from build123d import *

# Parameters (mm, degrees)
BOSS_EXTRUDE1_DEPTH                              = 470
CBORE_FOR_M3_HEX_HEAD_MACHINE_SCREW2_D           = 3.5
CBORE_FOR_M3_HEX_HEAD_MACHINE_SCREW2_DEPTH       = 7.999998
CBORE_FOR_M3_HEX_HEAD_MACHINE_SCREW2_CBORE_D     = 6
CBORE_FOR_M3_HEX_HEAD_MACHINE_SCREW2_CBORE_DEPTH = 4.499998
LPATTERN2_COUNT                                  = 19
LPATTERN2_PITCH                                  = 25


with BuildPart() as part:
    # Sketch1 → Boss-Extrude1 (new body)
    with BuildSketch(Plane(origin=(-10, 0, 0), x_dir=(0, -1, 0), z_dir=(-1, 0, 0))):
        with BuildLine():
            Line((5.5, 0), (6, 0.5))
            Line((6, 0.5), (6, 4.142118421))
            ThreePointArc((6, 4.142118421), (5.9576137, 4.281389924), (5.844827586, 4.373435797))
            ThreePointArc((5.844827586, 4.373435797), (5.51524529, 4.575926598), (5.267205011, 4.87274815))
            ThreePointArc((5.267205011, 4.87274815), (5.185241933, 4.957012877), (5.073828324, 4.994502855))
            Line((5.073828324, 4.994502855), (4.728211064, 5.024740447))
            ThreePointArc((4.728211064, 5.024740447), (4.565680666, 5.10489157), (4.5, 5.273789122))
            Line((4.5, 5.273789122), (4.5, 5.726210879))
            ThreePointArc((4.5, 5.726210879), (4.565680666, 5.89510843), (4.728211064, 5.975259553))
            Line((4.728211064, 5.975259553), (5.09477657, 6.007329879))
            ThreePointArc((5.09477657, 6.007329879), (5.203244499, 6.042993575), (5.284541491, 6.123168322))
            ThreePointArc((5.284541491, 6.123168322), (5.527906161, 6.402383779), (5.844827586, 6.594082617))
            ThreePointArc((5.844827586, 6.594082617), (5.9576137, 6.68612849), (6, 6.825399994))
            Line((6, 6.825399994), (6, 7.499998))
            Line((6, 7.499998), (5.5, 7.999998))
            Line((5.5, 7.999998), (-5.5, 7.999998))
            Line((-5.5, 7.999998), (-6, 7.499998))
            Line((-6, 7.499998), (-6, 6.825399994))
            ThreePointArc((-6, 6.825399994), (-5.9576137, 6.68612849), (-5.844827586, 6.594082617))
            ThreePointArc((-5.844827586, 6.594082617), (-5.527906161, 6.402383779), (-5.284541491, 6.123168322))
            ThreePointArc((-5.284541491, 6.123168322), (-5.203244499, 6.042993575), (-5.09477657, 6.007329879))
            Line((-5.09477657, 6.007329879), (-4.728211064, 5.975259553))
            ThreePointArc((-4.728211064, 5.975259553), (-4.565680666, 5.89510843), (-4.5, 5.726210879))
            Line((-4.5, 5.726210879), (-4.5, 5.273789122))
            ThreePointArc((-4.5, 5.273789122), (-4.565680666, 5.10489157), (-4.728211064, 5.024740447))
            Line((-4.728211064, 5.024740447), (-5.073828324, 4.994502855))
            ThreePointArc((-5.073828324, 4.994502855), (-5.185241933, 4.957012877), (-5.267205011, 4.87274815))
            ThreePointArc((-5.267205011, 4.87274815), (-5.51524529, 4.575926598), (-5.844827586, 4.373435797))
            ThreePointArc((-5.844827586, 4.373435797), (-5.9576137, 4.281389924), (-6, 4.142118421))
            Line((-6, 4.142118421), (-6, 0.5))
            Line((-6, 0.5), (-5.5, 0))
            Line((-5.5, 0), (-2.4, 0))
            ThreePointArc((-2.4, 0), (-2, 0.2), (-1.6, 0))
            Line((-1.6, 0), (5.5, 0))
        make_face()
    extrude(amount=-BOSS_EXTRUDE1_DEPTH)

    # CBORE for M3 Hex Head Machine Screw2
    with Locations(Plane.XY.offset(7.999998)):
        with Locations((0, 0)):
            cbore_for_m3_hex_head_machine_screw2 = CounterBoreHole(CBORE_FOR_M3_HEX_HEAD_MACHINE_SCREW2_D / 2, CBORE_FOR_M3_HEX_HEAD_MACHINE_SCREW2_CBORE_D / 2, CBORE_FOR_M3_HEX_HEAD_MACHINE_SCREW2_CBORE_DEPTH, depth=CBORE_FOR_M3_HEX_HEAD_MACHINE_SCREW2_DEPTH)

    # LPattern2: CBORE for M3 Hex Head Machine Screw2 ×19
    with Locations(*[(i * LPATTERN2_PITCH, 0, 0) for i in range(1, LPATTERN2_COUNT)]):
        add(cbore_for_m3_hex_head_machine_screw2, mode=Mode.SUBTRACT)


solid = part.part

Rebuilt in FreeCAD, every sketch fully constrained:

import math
import FreeCAD as App
import Part
import Sketcher

V = App.Vector
Q = App.Units.Quantity

doc = App.newDocument("Part")
params = doc.addObject("Spreadsheet::Sheet", "Params")
for row, (alias, value) in enumerate([
    ("sketch1_radius", "1.2 mm"),
    ("sketch1_radius2", "0.5 mm"),
    ("sketch1_width", "11 mm"),
    ("sketch1_radius3", "0.25 mm"),
    ("sketch1_width2", "3.1 mm"),
    ("pad1_length", "470 mm"),
    ("sketch2_diameter", "3.5 mm"),
    ("hole_diameter", "3.5 mm"),
    ("hole_depth", "7.999998 mm"),
    ("hole_cbore_diameter", "6 mm"),
    ("hole_cbore_depth", "4.499998 mm"),
    ("linearpattern_pitch", "25 mm"),
], start=1):
    params.set(f"A{row}", alias)
    params.set(f"B{row}", "=" + value)
    params.setAlias(f"B{row}", alias)

body = doc.addObject("PartDesign::Body", "Body")

# Sketch on YZ plane
sketch1 = body.newObject("Sketcher::SketchObject", "Sketch")
sketch1.AttachmentSupport = (doc.getObject("YZ_Plane"), [""])
sketch1.MapMode = "FlatFace"
sketch1.AttachmentOffset = App.Placement(V(0, 0, -10), App.Rotation())
sketch1.addGeometry(Part.LineSegment(V(-5.5, 0, 0), V(-6, 0.5, 0)), False)
sketch1.addGeometry(Part.LineSegment(V(-6, 0.5, 0), V(-6, 4.142118, 0)), False)
sketch1.addGeometry(Part.ArcOfCircle(Part.Circle(V(-5.75, 4.142118, 0), V(0, 0, 1), 0.25), math.radians(112.29097), math.radians(180)), False)
sketch1.addGeometry(Part.ArcOfCircle(Part.Circle(V(-6.3, 5.483759, 0), V(0, 0, 1), 1.2), math.radians(-67.70903), math.radians(-30.608951)), False)
sketch1.addGeometry(Part.ArcOfCircle(Part.Circle(V(-5.052039, 4.745454, 0), V(0, 0, 1), 0.25), math.radians(95), math.radians(149.391049)), False)
sketch1.addGeometry(Part.LineSegment(V(-5.073828, 4.994503, 0), V(-4.728211, 5.02474, 0)), False)
sketch1.addGeometry(Part.ArcOfCircle(Part.Circle(V(-4.75, 5.273789, 0), V(0, 0, 1), 0.25), math.radians(-85), math.radians(0)), False)
sketch1.addGeometry(Part.LineSegment(V(-4.5, 5.273789, 0), V(-4.5, 5.726211, 0)), False)
sketch1.addGeometry(Part.ArcOfCircle(Part.Circle(V(-4.75, 5.726211, 0), V(0, 0, 1), 0.25), math.radians(0), math.radians(85)), False)
sketch1.addGeometry(Part.LineSegment(V(-4.728211, 5.97526, 0), V(-5.094777, 6.00733, 0)), False)
sketch1.addGeometry(Part.ArcOfCircle(Part.Circle(V(-5.072988, 6.256379, 0), V(0, 0, 1), 0.25), math.radians(-147.802393), math.radians(-95)), False)
sketch1.addGeometry(Part.ArcOfCircle(Part.Circle(V(-6.3, 5.483759, 0), V(0, 0, 1), 1.2), math.radians(32.197607), math.radians(67.70903)), False)
sketch1.addGeometry(Part.ArcOfCircle(Part.Circle(V(-5.75, 6.8254, 0), V(0, 0, 1), 0.25), math.radians(180), math.radians(247.70903)), False)
sketch1.addGeometry(Part.LineSegment(V(-6, 6.8254, 0), V(-6, 7.499998, 0)), False)
sketch1.addGeometry(Part.LineSegment(V(-6, 7.499998, 0), V(-5.5, 7.999998, 0)), False)
sketch1.addGeometry(Part.LineSegment(V(-5.5, 7.999998, 0), V(5.5, 7.999998, 0)), False)
sketch1.addGeometry(Part.LineSegment(V(5.5, 7.999998, 0), V(6, 7.499998, 0)), False)
sketch1.addGeometry(Part.LineSegment(V(6, 7.499998, 0), V(6, 6.8254, 0)), False)
sketch1.addGeometry(Part.ArcOfCircle(Part.Circle(V(5.75, 6.8254, 0), V(0, 0, 1), 0.25), math.radians(-67.70903), math.radians(0)), False)
sketch1.addGeometry(Part.ArcOfCircle(Part.Circle(V(6.3, 5.483759, 0), V(0, 0, 1), 1.2), math.radians(112.29097), math.radians(147.802393)), False)
sketch1.addGeometry(Part.ArcOfCircle(Part.Circle(V(5.072988, 6.256379, 0), V(0, 0, 1), 0.25), math.radians(-85), math.radians(-32.197607)), False)
sketch1.addGeometry(Part.LineSegment(V(5.094777, 6.00733, 0), V(4.728211, 5.97526, 0)), False)
sketch1.addGeometry(Part.ArcOfCircle(Part.Circle(V(4.75, 5.726211, 0), V(0, 0, 1), 0.25), math.radians(95), math.radians(180)), False)
sketch1.addGeometry(Part.LineSegment(V(4.5, 5.726211, 0), V(4.5, 5.273789, 0)), False)
sketch1.addGeometry(Part.ArcOfCircle(Part.Circle(V(4.75, 5.273789, 0), V(0, 0, 1), 0.25), math.radians(-180), math.radians(-95)), False)
sketch1.addGeometry(Part.LineSegment(V(4.728211, 5.02474, 0), V(5.073828, 4.994503, 0)), False)
sketch1.addGeometry(Part.ArcOfCircle(Part.Circle(V(5.052039, 4.745454, 0), V(0, 0, 1), 0.25), math.radians(30.608951), math.radians(85)), False)
sketch1.addGeometry(Part.ArcOfCircle(Part.Circle(V(6.3, 5.483759, 0), V(0, 0, 1), 1.2), math.radians(-149.391049), math.radians(-112.29097)), False)
sketch1.addGeometry(Part.ArcOfCircle(Part.Circle(V(5.75, 4.142118, 0), V(0, 0, 1), 0.25), math.radians(0), math.radians(67.70903)), False)
sketch1.addGeometry(Part.LineSegment(V(6, 4.142118, 0), V(6, 0.5, 0)), False)
sketch1.addGeometry(Part.LineSegment(V(6, 0.5, 0), V(5.5, 0, 0)), False)
sketch1.addGeometry(Part.LineSegment(V(5.5, 0, 0), V(2.4, 0, 0)), False)
sketch1.addGeometry(Part.ArcOfCircle(Part.Circle(V(2, -0.3, 0), V(0, 0, 1), 0.5), math.radians(36.869898), math.radians(143.130102)), False)
sketch1.addGeometry(Part.LineSegment(V(1.6, 0, 0), V(-5.5, 0, 0)), False)
sketch1.addConstraint(Sketcher.Constraint("Coincident", 0, 2, 1, 1))
sketch1.addConstraint(Sketcher.Constraint("Tangent", 1, 2, 2, 2))
sketch1.addConstraint(Sketcher.Constraint("Tangent", 2, 1, 3, 1))
sketch1.addConstraint(Sketcher.Constraint("Tangent", 3, 2, 4, 2))
sketch1.addConstraint(Sketcher.Constraint("Tangent", 4, 1, 5, 1))
sketch1.addConstraint(Sketcher.Constraint("Tangent", 5, 2, 6, 1))
sketch1.addConstraint(Sketcher.Constraint("Tangent", 6, 2, 7, 1))
sketch1.addConstraint(Sketcher.Constraint("Tangent", 7, 2, 8, 1))
sketch1.addConstraint(Sketcher.Constraint("Tangent", 8, 2, 9, 1))
sketch1.addConstraint(Sketcher.Constraint("Tangent", 9, 2, 10, 2))
sketch1.addConstraint(Sketcher.Constraint("Tangent", 10, 1, 11, 1))
sketch1.addConstraint(Sketcher.Constraint("Tangent", 11, 2, 12, 2))
sketch1.addConstraint(Sketcher.Constraint("Tangent", 12, 1, 13, 1))
sketch1.addConstraint(Sketcher.Constraint("Coincident", 13, 2, 14, 1))
sketch1.addConstraint(Sketcher.Constraint("Coincident", 14, 2, 15, 1))
sketch1.addConstraint(Sketcher.Constraint("Coincident", 15, 2, 16, 1))
sketch1.addConstraint(Sketcher.Constraint("Coincident", 16, 2, 17, 1))
sketch1.addConstraint(Sketcher.Constraint("Tangent", 17, 2, 18, 2))
sketch1.addConstraint(Sketcher.Constraint("Tangent", 18, 1, 19, 1))
sketch1.addConstraint(Sketcher.Constraint("Tangent", 19, 2, 20, 2))
sketch1.addConstraint(Sketcher.Constraint("Tangent", 20, 1, 21, 1))
sketch1.addConstraint(Sketcher.Constraint("Tangent", 21, 2, 22, 1))
sketch1.addConstraint(Sketcher.Constraint("Tangent", 22, 2, 23, 1))
sketch1.addConstraint(Sketcher.Constraint("Tangent", 23, 2, 24, 1))
sketch1.addConstraint(Sketcher.Constraint("Tangent", 24, 2, 25, 1))
sketch1.addConstraint(Sketcher.Constraint("Tangent", 25, 2, 26, 2))
sketch1.addConstraint(Sketcher.Constraint("Tangent", 26, 1, 27, 1))
sketch1.addConstraint(Sketcher.Constraint("Tangent", 27, 2, 28, 2))
sketch1.addConstraint(Sketcher.Constraint("Tangent", 28, 1, 29, 1))
sketch1.addConstraint(Sketcher.Constraint("Coincident", 29, 2, 30, 1))
sketch1.addConstraint(Sketcher.Constraint("Coincident", 30, 2, 31, 1))
sketch1.addConstraint(Sketcher.Constraint("Coincident", 31, 2, 32, 1))
sketch1.addConstraint(Sketcher.Constraint("Coincident", 32, 2, 33, 1))
sketch1.addConstraint(Sketcher.Constraint("Coincident", 33, 2, 0, 1))
sketch1.addConstraint(Sketcher.Constraint("Vertical", 1))
sketch1.addConstraint(Sketcher.Constraint("Vertical", 7))
sketch1.addConstraint(Sketcher.Constraint("Vertical", 13))
sketch1.addConstraint(Sketcher.Constraint("Horizontal", 15))
sketch1.addConstraint(Sketcher.Constraint("Vertical", 17))
sketch1.addConstraint(Sketcher.Constraint("Vertical", 23))
sketch1.addConstraint(Sketcher.Constraint("Vertical", 29))
sketch1.addConstraint(Sketcher.Constraint("Horizontal", 31))
sketch1.addConstraint(Sketcher.Constraint("Horizontal", 33))
sketch1.addConstraint(Sketcher.Constraint("Coincident", 11, 3, 3, 3))
sketch1.addConstraint(Sketcher.Constraint("Coincident", 27, 3, 19, 3))
sketch1.addConstraint(Sketcher.Constraint("Equal", 2, 4))
sketch1.addConstraint(Sketcher.Constraint("Equal", 4, 6))
sketch1.addConstraint(Sketcher.Constraint("Equal", 6, 8))
sketch1.addConstraint(Sketcher.Constraint("Equal", 8, 10))
sketch1.addConstraint(Sketcher.Constraint("Equal", 3, 11))
sketch1.addConstraint(Sketcher.Constraint("Equal", 10, 12))
sketch1.addConstraint(Sketcher.Constraint("Equal", 12, 18))
sketch1.addConstraint(Sketcher.Constraint("Equal", 11, 19))
sketch1.addConstraint(Sketcher.Constraint("Equal", 18, 20))
sketch1.addConstraint(Sketcher.Constraint("Equal", 20, 22))
sketch1.addConstraint(Sketcher.Constraint("Equal", 22, 24))
sketch1.addConstraint(Sketcher.Constraint("Equal", 24, 26))
sketch1.addConstraint(Sketcher.Constraint("Equal", 19, 27))
sketch1.addConstraint(Sketcher.Constraint("Equal", 26, 28))
sketch1.addConstraint(Sketcher.Constraint("Symmetric", 30, 2, 33, 2, -1, 1))
sketch1.addConstraint(Sketcher.Constraint("Symmetric", 12, 3, 18, 3, -2))
sketch1.addConstraint(Sketcher.Constraint("Symmetric", 10, 3, 20, 3, -2))
sketch1.addConstraint(Sketcher.Constraint("Symmetric", 8, 3, 22, 3, -2))
sketch1.addConstraint(Sketcher.Constraint("Symmetric", 5, 2, 24, 2, -2))
sketch1.addConstraint(Sketcher.Constraint("Symmetric", 0, 2, 29, 2, -2))
sketch1.addConstraint(Sketcher.Constraint("PointOnObject", 30, 2, -1))
sketch1.addConstraint(Sketcher.Constraint("Perpendicular", 0, 14))
sketch1.addConstraint(Sketcher.Constraint("Perpendicular", 14, 16))
sketch1.addConstraint(Sketcher.Constraint("Parallel", 5, 21))
sketch1.addConstraint(Sketcher.Constraint("Perpendicular", 16, 30))
sketch1.addConstraint(Sketcher.Constraint("Horizontal", 13, 2, 16, 2))
sketch1.addConstraint(Sketcher.Constraint("Vertical", 2, 3, 12, 3))
sketch1.addConstraint(Sketcher.Constraint("Vertical", 15, 2, 30, 2))
sketch1.addConstraint(Sketcher.Constraint("Radius", 3, Q("1.2 mm")))
sketch1.addConstraint(Sketcher.Constraint("Radius", 32, Q("0.5 mm")))
sketch1.addConstraint(Sketcher.Constraint("DistanceX", 15, 1, 15, 2, Q("11 mm")))
sketch1.addConstraint(Sketcher.Constraint("Angle", 5, Q("5 deg")))
sketch1.addConstraint(Sketcher.Constraint("Radius", 2, Q("0.25 mm")))
sketch1.addConstraint(Sketcher.Constraint("DistanceX", 31, 2, 31, 1, Q("3.1 mm")))
sketch1.addConstraint(Sketcher.Constraint("DistanceX", 33, 2, 33, 1, Q("7.1 mm")))
sketch1.addConstraint(Sketcher.Constraint("DistanceX", 0, 2, -1, 1, Q("6 mm")))
sketch1.addConstraint(Sketcher.Constraint("DistanceX", 2, 3, 6, 3, Q("1 mm")))
sketch1.addConstraint(Sketcher.Constraint("DistanceX", 3, 3, -1, 1, Q("6.3 mm")))
sketch1.addConstraint(Sketcher.Constraint("DistanceY", 13, 1, 13, 2, Q("0.674598 mm")))
sketch1.addConstraint(Sketcher.Constraint("DistanceX", 2, 1, 4, 1, Q("0.770999 mm")))
sketch1.addConstraint(Sketcher.Constraint("DistanceY", 1, 1, 1, 2, Q("3.642118 mm")))
sketch1.addConstraint(Sketcher.Constraint("DistanceY", 7, 1, 7, 2, Q("0.452422 mm")))
sketch1.setExpression("Constraints[73]", "Params.sketch1_radius")
sketch1.setExpression("Constraints[74]", "Params.sketch1_radius2")
sketch1.setExpression("Constraints[75]", "Params.sketch1_width")
sketch1.setExpression("Constraints[77]", "Params.sketch1_radius3")
sketch1.setExpression("Constraints[78]", "Params.sketch1_width2")
pad1 = body.newObject("PartDesign::Pad", "Pad")
pad1.Profile = sketch1
pad1.setExpression("Length", "Params.pad1_length")

# Sketch on XY plane
sketch2 = body.newObject("Sketcher::SketchObject", "Sketch001")
sketch2.AttachmentSupport = (doc.getObject("XY_Plane"), [""])
sketch2.MapMode = "FlatFace"
sketch2.AttachmentOffset = App.Placement(V(0, 0, 7.999998), App.Rotation())
sketch2.addGeometry(Part.Circle(V(0, 0, 0), V(0, 0, 1), 1.75), False)
sketch2.addConstraint(Sketcher.Constraint("Coincident", 0, 3, -1, 1))
sketch2.addConstraint(Sketcher.Constraint("Diameter", 0, Q("3.5 mm")))
sketch2.setExpression("Constraints[1]", "Params.sketch2_diameter")
doc.recompute()
hole = body.newObject("PartDesign::Hole", "Hole")
hole.Profile = sketch2
hole.ThreadType = "None"
hole.setExpression("Diameter", "Params.hole_diameter")
hole.DepthType = "Dimension"
hole.setExpression("Depth", "Params.hole_depth")
hole.DrillPoint = "Flat"
hole.HoleCutType = "Counterbore"
hole.setExpression("HoleCutDiameter", "Params.hole_cbore_diameter")
hole.setExpression("HoleCutDepth", "Params.hole_cbore_depth")
doc.recompute()

linearpattern = body.newObject("PartDesign::LinearPattern", "LinearPattern")
linearpattern.Originals = [hole]
linearpattern.Direction = (doc.getObject("X_Axis"), [""])
linearpattern.Mode = "offset"
linearpattern.setExpression("Offset", "Params.linearpattern_pitch")
linearpattern.Occurrences = 19
body.Tip = linearpattern

doc.recompute()
